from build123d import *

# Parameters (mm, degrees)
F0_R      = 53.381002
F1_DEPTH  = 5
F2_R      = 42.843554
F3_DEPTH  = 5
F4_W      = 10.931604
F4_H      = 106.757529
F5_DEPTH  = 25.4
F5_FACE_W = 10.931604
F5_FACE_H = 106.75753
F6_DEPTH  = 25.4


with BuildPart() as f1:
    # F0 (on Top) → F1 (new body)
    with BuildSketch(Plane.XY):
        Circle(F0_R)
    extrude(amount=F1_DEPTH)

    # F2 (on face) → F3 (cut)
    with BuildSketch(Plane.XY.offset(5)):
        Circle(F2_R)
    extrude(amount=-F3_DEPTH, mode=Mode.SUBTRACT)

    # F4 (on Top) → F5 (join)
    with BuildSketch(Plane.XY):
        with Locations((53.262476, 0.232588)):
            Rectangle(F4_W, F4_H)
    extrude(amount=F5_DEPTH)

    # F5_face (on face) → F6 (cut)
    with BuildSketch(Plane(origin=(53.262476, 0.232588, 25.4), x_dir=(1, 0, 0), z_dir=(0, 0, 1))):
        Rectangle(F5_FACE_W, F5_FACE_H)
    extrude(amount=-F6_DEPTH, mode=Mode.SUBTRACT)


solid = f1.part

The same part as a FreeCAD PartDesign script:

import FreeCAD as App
import Part
import Sketcher

V = App.Vector

doc = App.newDocument("Part")
params = doc.addObject("Spreadsheet::Sheet", "Params")
for row, (alias, value) in enumerate([
    ("pad1_length", "5 mm"),
    ("pocket1_length", "5 mm"),
    ("pad2_length", "25.4 mm"),
    ("pocket2_length", "25.4 mm"),
], start=1):
    params.set(f"A{row}", alias)
    params.set(f"B{row}", "=" + value)
    params.setAlias(f"B{row}", alias)

body = doc.addObject("PartDesign::Body", "Body")

# Sketch on XY plane
sketch1 = body.newObject("Sketcher::SketchObject", "Sketch")
sketch1.AttachmentSupport = (doc.getObject("XY_Plane"), [""])
sketch1.MapMode = "FlatFace"
sketch1.addGeometry(Part.Circle(V(0, 0, 0), V(0, 0, 1), 53.381002), False)
sketch1.addConstraint([
    Sketcher.Constraint("Coincident", 0, 3, -1, 1),
    Sketcher.Constraint("Diameter", 0, 106.762004),
])
pad1 = body.newObject("PartDesign::Pad", "Pad")
pad1.Profile = sketch1
pad1.setExpression("Length", "Params.pad1_length")

# Sketch on XY plane
sketch2 = body.newObject("Sketcher::SketchObject", "Sketch001")
sketch2.AttachmentSupport = (doc.getObject("XY_Plane"), [""])
sketch2.MapMode = "FlatFace"
sketch2.AttachmentOffset = App.Placement(V(0, 0, 5), App.Rotation())
sketch2.addGeometry(Part.Circle(V(0, 0, 0), V(0, 0, 1), 42.843554), False)
sketch2.addConstraint([
    Sketcher.Constraint("Coincident", 0, 3, -1, 1),
    Sketcher.Constraint("Diameter", 0, 85.687108),
])
pocket1 = body.newObject("PartDesign::Pocket", "Pocket")
pocket1.Profile = sketch2
pocket1.setExpression("Length", "Params.pocket1_length")

# Sketch on XY plane
sketch3 = body.newObject("Sketcher::SketchObject", "Sketch002")
sketch3.AttachmentSupport = (doc.getObject("XY_Plane"), [""])
sketch3.MapMode = "FlatFace"
sketch3.addGeometry([
    Part.LineSegment(V(47.796674, 53.611353, 0), V(47.796674, -53.146177, 0)),
    Part.LineSegment(V(47.796674, -53.146177, 0), V(58.728278, -53.146177, 0)),
    Part.LineSegment(V(58.728278, -53.146177, 0), V(58.728278, 53.611353, 0)),
    Part.LineSegment(V(58.728278, 53.611353, 0), V(47.796674, 53.611353, 0)),
], False)
sketch3.addConstraint([
    Sketcher.Constraint("Coincident", 0, 2, 1, 1),
    Sketcher.Constraint("Coincident", 1, 2, 2, 1),
    Sketcher.Constraint("Coincident", 2, 2, 3, 1),
    Sketcher.Constraint("Coincident", 3, 2, 0, 1),
    Sketcher.Constraint("Vertical", 0),
    Sketcher.Constraint("Horizontal", 1),
    Sketcher.Constraint("Vertical", 2),
    Sketcher.Constraint("Horizontal", 3),
    Sketcher.Constraint("DistanceY", 0, 2, 0, 1, 106.757529),
    Sketcher.Constraint("DistanceX", 1, 1, 1, 2, 10.931604),
    Sketcher.Constraint("DistanceX", -1, 1, 1, 2, 58.728278),
    Sketcher.Constraint("DistanceY", 0, 2, -1, 1, 53.146177),
])
pad2 = body.newObject("PartDesign::Pad", "Pad001")
pad2.Profile = sketch3
pad2.setExpression("Length", "Params.pad2_length")

# Sketch on XY plane
sketch4 = body.newObject("Sketcher::SketchObject", "Sketch003")
sketch4.AttachmentSupport = (doc.getObject("XY_Plane"), [""])
sketch4.MapMode = "FlatFace"
sketch4.AttachmentOffset = App.Placement(V(0, 0, 25.4), App.Rotation())
sketch4.addGeometry([
    Part.LineSegment(V(47.796674, 53.611353, 0), V(47.796674, -53.146177, 0)),
    Part.LineSegment(V(47.796674, -53.146177, 0), V(58.728278, -53.146177, 0)),
    Part.LineSegment(V(58.728278, -53.146177, 0), V(58.728278, 53.611353, 0)),
    Part.LineSegment(V(58.728278, 53.611353, 0), V(47.796674, 53.611353, 0)),
], False)
sketch4.addConstraint([
    Sketcher.Constraint("Coincident", 0, 2, 1, 1),
    Sketcher.Constraint("Coincident", 1, 2, 2, 1),
    Sketcher.Constraint("Coincident", 2, 2, 3, 1),
    Sketcher.Constraint("Coincident", 3, 2, 0, 1),
    Sketcher.Constraint("Vertical", 0),
    Sketcher.Constraint("Horizontal", 1),
    Sketcher.Constraint("Vertical", 2),
    Sketcher.Constraint("Horizontal", 3),
    Sketcher.Constraint("DistanceY", 0, 2, 0, 1, 106.75753),
    Sketcher.Constraint("DistanceX", 1, 1, 1, 2, 10.931604),
    Sketcher.Constraint("DistanceX", -1, 1, 1, 2, 58.728278),
    Sketcher.Constraint("DistanceY", 0, 2, -1, 1, 53.146177),
])
pocket2 = body.newObject("PartDesign::Pocket", "Pocket001")
pocket2.Profile = sketch4
pocket2.setExpression("Length", "Params.pocket2_length")

doc.recompute()
